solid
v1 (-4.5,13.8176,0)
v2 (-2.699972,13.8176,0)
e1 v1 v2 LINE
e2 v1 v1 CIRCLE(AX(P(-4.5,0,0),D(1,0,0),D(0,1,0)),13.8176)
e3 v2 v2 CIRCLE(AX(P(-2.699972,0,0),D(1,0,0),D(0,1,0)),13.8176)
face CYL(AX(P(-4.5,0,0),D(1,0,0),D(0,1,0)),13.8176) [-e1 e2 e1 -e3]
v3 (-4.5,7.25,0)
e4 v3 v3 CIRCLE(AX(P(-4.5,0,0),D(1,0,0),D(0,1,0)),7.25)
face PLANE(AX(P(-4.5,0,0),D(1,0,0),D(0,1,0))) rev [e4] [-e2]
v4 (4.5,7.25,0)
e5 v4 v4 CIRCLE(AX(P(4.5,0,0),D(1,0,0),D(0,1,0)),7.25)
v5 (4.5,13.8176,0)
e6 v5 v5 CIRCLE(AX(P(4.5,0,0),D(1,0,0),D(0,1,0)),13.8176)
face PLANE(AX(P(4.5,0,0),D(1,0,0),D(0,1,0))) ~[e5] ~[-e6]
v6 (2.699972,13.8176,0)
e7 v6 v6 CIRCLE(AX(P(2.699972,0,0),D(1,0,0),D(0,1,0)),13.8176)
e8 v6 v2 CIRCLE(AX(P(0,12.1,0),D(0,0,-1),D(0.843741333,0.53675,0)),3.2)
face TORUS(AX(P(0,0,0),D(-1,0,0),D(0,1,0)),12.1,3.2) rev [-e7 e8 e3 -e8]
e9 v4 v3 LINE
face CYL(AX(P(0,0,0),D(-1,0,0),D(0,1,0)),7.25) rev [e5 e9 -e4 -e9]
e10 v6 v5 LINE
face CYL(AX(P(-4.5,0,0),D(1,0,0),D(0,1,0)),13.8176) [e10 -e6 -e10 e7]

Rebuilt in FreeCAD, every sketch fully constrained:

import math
import FreeCAD as App
import Part
import Sketcher

doc = App.newDocument("Part")
params = doc.addObject("Spreadsheet::Sheet", "Params")
for row, (alias, value) in enumerate([
    ("sketch1_diameter", "14.5 mm"),
    ("pad1_length", "9 mm"),
    ("sketch2_radius", "3.2 mm"),
    ("sketch2_width", "9 mm"),
    ("revolution_angle", "360 deg"),
], start=1):
    params.set(f"A{row}", alias)
    params.set(f"B{row}", "=" + value)
    params.setAlias(f"B{row}", alias)

body = doc.addObject("PartDesign::Body", "Body")

# Sketch on YZ plane
sketch1 = body.newObject("Sketcher::SketchObject", "Sketch")
sketch1.AttachmentSupport = (doc.getObject("YZ_Plane"), [""])
sketch1.MapMode = "FlatFace"
sketch1.addGeometry([
    Part.Circle(App.Vector(0, 0, 0), App.Vector(0, 0, 1), 8),
    Part.Circle(App.Vector(0, 0, 0), App.Vector(0, 0, 1), 7),
], False)
sketch1.addConstraint([
    Sketcher.Constraint("Coincident", 0, 3, -1, 1),
    Sketcher.Constraint("Coincident", 1, 3, -1, 1),
    Sketcher.Constraint("Diameter", 1, 14.5),
    Sketcher.Constraint("Diameter", 0, 16.7116),
])
sketch1.setExpression("Constraints[2]", "Params.sketch1_diameter")
pad1 = body.newObject("PartDesign::Pad", "Pad")
pad1.Profile = sketch1
pad1.setExpression("Length", "Params.pad1_length")
pad1.Midplane = True

# Sketch on XY plane
sketch2 = body.newObject("Sketcher::SketchObject", "Sketch001")
sketch2.AttachmentSupport = (doc.getObject("XY_Plane"), [""])
sketch2.MapMode = "FlatFace"
sketch2.addGeometry([
    Part.ArcOfCircle(Part.Circle(App.Vector(0, 12.1, 0), App.Vector(0, 0, 1), 3.2), math.radians(148), math.radians(392)),  # 0
    Part.LineSegment(App.Vector(-2.7, 13.8, 0), App.Vector(-4.5, 13.8, 0)),  # 1
    Part.LineSegment(App.Vector(-4.5, 13.8, 0), App.Vector(-4.5, 8.4, 0)),  # 2
    Part.LineSegment(App.Vector(-4.5, 8.4, 0), App.Vector(4.5, 8.4, 0)),  # 3
    Part.LineSegment(App.Vector(4.5, 8.4, 0), App.Vector(4.5, 13.8, 0)),  # 4
    Part.LineSegment(App.Vector(4.5, 13.8, 0), App.Vector(2.7, 13.8, 0)),  # 5
], False)
sketch2.addConstraint([
    Sketcher.Constraint("Coincident", 0, 1, 1, 1),
    Sketcher.Constraint("Coincident", 1, 2, 2, 1),
    Sketcher.Constraint("Coincident", 2, 2, 3, 1),
    Sketcher.Constraint("Coincident", 3, 2, 4, 1),
    Sketcher.Constraint("Coincident", 4, 2, 5, 1),
    Sketcher.Constraint("Coincident", 5, 2, 0, 2),
    Sketcher.Constraint("Horizontal", 1),
    Sketcher.Constraint("Vertical", 2),
    Sketcher.Constraint("Horizontal", 3),
    Sketcher.Constraint("Vertical", 4),
    Sketcher.Constraint("Horizontal", 5),
    Sketcher.Constraint("Symmetric", 1, 2, 4, 2, -2),
    Sketcher.Constraint("PointOnObject", 0, 3, -2),
    Sketcher.Constraint("Radius", 0, 3.2),
    Sketcher.Constraint("DistanceX", 0, 1, 5, 2, 5.4),
    Sketcher.Constraint("DistanceX", 3, 1, 3, 2, 9.0),
    Sketcher.Constraint("DistanceY", -1, 1, 0, 3, 12.1),
    Sketcher.Constraint("DistanceY", 2, 2, 2, 1, 5.4618),
])
sketch2.setExpression("Constraints[13]", "Params.sketch2_radius")
sketch2.setExpression("Constraints[15]", "Params.sketch2_width")
revolution = body.newObject("PartDesign::Revolution", "Revolution")
revolution.Profile = sketch2
revolution.ReferenceAxis = (sketch2, ["H_Axis"])
revolution.setExpression("Angle", "Params.revolution_angle")

doc.recompute()
